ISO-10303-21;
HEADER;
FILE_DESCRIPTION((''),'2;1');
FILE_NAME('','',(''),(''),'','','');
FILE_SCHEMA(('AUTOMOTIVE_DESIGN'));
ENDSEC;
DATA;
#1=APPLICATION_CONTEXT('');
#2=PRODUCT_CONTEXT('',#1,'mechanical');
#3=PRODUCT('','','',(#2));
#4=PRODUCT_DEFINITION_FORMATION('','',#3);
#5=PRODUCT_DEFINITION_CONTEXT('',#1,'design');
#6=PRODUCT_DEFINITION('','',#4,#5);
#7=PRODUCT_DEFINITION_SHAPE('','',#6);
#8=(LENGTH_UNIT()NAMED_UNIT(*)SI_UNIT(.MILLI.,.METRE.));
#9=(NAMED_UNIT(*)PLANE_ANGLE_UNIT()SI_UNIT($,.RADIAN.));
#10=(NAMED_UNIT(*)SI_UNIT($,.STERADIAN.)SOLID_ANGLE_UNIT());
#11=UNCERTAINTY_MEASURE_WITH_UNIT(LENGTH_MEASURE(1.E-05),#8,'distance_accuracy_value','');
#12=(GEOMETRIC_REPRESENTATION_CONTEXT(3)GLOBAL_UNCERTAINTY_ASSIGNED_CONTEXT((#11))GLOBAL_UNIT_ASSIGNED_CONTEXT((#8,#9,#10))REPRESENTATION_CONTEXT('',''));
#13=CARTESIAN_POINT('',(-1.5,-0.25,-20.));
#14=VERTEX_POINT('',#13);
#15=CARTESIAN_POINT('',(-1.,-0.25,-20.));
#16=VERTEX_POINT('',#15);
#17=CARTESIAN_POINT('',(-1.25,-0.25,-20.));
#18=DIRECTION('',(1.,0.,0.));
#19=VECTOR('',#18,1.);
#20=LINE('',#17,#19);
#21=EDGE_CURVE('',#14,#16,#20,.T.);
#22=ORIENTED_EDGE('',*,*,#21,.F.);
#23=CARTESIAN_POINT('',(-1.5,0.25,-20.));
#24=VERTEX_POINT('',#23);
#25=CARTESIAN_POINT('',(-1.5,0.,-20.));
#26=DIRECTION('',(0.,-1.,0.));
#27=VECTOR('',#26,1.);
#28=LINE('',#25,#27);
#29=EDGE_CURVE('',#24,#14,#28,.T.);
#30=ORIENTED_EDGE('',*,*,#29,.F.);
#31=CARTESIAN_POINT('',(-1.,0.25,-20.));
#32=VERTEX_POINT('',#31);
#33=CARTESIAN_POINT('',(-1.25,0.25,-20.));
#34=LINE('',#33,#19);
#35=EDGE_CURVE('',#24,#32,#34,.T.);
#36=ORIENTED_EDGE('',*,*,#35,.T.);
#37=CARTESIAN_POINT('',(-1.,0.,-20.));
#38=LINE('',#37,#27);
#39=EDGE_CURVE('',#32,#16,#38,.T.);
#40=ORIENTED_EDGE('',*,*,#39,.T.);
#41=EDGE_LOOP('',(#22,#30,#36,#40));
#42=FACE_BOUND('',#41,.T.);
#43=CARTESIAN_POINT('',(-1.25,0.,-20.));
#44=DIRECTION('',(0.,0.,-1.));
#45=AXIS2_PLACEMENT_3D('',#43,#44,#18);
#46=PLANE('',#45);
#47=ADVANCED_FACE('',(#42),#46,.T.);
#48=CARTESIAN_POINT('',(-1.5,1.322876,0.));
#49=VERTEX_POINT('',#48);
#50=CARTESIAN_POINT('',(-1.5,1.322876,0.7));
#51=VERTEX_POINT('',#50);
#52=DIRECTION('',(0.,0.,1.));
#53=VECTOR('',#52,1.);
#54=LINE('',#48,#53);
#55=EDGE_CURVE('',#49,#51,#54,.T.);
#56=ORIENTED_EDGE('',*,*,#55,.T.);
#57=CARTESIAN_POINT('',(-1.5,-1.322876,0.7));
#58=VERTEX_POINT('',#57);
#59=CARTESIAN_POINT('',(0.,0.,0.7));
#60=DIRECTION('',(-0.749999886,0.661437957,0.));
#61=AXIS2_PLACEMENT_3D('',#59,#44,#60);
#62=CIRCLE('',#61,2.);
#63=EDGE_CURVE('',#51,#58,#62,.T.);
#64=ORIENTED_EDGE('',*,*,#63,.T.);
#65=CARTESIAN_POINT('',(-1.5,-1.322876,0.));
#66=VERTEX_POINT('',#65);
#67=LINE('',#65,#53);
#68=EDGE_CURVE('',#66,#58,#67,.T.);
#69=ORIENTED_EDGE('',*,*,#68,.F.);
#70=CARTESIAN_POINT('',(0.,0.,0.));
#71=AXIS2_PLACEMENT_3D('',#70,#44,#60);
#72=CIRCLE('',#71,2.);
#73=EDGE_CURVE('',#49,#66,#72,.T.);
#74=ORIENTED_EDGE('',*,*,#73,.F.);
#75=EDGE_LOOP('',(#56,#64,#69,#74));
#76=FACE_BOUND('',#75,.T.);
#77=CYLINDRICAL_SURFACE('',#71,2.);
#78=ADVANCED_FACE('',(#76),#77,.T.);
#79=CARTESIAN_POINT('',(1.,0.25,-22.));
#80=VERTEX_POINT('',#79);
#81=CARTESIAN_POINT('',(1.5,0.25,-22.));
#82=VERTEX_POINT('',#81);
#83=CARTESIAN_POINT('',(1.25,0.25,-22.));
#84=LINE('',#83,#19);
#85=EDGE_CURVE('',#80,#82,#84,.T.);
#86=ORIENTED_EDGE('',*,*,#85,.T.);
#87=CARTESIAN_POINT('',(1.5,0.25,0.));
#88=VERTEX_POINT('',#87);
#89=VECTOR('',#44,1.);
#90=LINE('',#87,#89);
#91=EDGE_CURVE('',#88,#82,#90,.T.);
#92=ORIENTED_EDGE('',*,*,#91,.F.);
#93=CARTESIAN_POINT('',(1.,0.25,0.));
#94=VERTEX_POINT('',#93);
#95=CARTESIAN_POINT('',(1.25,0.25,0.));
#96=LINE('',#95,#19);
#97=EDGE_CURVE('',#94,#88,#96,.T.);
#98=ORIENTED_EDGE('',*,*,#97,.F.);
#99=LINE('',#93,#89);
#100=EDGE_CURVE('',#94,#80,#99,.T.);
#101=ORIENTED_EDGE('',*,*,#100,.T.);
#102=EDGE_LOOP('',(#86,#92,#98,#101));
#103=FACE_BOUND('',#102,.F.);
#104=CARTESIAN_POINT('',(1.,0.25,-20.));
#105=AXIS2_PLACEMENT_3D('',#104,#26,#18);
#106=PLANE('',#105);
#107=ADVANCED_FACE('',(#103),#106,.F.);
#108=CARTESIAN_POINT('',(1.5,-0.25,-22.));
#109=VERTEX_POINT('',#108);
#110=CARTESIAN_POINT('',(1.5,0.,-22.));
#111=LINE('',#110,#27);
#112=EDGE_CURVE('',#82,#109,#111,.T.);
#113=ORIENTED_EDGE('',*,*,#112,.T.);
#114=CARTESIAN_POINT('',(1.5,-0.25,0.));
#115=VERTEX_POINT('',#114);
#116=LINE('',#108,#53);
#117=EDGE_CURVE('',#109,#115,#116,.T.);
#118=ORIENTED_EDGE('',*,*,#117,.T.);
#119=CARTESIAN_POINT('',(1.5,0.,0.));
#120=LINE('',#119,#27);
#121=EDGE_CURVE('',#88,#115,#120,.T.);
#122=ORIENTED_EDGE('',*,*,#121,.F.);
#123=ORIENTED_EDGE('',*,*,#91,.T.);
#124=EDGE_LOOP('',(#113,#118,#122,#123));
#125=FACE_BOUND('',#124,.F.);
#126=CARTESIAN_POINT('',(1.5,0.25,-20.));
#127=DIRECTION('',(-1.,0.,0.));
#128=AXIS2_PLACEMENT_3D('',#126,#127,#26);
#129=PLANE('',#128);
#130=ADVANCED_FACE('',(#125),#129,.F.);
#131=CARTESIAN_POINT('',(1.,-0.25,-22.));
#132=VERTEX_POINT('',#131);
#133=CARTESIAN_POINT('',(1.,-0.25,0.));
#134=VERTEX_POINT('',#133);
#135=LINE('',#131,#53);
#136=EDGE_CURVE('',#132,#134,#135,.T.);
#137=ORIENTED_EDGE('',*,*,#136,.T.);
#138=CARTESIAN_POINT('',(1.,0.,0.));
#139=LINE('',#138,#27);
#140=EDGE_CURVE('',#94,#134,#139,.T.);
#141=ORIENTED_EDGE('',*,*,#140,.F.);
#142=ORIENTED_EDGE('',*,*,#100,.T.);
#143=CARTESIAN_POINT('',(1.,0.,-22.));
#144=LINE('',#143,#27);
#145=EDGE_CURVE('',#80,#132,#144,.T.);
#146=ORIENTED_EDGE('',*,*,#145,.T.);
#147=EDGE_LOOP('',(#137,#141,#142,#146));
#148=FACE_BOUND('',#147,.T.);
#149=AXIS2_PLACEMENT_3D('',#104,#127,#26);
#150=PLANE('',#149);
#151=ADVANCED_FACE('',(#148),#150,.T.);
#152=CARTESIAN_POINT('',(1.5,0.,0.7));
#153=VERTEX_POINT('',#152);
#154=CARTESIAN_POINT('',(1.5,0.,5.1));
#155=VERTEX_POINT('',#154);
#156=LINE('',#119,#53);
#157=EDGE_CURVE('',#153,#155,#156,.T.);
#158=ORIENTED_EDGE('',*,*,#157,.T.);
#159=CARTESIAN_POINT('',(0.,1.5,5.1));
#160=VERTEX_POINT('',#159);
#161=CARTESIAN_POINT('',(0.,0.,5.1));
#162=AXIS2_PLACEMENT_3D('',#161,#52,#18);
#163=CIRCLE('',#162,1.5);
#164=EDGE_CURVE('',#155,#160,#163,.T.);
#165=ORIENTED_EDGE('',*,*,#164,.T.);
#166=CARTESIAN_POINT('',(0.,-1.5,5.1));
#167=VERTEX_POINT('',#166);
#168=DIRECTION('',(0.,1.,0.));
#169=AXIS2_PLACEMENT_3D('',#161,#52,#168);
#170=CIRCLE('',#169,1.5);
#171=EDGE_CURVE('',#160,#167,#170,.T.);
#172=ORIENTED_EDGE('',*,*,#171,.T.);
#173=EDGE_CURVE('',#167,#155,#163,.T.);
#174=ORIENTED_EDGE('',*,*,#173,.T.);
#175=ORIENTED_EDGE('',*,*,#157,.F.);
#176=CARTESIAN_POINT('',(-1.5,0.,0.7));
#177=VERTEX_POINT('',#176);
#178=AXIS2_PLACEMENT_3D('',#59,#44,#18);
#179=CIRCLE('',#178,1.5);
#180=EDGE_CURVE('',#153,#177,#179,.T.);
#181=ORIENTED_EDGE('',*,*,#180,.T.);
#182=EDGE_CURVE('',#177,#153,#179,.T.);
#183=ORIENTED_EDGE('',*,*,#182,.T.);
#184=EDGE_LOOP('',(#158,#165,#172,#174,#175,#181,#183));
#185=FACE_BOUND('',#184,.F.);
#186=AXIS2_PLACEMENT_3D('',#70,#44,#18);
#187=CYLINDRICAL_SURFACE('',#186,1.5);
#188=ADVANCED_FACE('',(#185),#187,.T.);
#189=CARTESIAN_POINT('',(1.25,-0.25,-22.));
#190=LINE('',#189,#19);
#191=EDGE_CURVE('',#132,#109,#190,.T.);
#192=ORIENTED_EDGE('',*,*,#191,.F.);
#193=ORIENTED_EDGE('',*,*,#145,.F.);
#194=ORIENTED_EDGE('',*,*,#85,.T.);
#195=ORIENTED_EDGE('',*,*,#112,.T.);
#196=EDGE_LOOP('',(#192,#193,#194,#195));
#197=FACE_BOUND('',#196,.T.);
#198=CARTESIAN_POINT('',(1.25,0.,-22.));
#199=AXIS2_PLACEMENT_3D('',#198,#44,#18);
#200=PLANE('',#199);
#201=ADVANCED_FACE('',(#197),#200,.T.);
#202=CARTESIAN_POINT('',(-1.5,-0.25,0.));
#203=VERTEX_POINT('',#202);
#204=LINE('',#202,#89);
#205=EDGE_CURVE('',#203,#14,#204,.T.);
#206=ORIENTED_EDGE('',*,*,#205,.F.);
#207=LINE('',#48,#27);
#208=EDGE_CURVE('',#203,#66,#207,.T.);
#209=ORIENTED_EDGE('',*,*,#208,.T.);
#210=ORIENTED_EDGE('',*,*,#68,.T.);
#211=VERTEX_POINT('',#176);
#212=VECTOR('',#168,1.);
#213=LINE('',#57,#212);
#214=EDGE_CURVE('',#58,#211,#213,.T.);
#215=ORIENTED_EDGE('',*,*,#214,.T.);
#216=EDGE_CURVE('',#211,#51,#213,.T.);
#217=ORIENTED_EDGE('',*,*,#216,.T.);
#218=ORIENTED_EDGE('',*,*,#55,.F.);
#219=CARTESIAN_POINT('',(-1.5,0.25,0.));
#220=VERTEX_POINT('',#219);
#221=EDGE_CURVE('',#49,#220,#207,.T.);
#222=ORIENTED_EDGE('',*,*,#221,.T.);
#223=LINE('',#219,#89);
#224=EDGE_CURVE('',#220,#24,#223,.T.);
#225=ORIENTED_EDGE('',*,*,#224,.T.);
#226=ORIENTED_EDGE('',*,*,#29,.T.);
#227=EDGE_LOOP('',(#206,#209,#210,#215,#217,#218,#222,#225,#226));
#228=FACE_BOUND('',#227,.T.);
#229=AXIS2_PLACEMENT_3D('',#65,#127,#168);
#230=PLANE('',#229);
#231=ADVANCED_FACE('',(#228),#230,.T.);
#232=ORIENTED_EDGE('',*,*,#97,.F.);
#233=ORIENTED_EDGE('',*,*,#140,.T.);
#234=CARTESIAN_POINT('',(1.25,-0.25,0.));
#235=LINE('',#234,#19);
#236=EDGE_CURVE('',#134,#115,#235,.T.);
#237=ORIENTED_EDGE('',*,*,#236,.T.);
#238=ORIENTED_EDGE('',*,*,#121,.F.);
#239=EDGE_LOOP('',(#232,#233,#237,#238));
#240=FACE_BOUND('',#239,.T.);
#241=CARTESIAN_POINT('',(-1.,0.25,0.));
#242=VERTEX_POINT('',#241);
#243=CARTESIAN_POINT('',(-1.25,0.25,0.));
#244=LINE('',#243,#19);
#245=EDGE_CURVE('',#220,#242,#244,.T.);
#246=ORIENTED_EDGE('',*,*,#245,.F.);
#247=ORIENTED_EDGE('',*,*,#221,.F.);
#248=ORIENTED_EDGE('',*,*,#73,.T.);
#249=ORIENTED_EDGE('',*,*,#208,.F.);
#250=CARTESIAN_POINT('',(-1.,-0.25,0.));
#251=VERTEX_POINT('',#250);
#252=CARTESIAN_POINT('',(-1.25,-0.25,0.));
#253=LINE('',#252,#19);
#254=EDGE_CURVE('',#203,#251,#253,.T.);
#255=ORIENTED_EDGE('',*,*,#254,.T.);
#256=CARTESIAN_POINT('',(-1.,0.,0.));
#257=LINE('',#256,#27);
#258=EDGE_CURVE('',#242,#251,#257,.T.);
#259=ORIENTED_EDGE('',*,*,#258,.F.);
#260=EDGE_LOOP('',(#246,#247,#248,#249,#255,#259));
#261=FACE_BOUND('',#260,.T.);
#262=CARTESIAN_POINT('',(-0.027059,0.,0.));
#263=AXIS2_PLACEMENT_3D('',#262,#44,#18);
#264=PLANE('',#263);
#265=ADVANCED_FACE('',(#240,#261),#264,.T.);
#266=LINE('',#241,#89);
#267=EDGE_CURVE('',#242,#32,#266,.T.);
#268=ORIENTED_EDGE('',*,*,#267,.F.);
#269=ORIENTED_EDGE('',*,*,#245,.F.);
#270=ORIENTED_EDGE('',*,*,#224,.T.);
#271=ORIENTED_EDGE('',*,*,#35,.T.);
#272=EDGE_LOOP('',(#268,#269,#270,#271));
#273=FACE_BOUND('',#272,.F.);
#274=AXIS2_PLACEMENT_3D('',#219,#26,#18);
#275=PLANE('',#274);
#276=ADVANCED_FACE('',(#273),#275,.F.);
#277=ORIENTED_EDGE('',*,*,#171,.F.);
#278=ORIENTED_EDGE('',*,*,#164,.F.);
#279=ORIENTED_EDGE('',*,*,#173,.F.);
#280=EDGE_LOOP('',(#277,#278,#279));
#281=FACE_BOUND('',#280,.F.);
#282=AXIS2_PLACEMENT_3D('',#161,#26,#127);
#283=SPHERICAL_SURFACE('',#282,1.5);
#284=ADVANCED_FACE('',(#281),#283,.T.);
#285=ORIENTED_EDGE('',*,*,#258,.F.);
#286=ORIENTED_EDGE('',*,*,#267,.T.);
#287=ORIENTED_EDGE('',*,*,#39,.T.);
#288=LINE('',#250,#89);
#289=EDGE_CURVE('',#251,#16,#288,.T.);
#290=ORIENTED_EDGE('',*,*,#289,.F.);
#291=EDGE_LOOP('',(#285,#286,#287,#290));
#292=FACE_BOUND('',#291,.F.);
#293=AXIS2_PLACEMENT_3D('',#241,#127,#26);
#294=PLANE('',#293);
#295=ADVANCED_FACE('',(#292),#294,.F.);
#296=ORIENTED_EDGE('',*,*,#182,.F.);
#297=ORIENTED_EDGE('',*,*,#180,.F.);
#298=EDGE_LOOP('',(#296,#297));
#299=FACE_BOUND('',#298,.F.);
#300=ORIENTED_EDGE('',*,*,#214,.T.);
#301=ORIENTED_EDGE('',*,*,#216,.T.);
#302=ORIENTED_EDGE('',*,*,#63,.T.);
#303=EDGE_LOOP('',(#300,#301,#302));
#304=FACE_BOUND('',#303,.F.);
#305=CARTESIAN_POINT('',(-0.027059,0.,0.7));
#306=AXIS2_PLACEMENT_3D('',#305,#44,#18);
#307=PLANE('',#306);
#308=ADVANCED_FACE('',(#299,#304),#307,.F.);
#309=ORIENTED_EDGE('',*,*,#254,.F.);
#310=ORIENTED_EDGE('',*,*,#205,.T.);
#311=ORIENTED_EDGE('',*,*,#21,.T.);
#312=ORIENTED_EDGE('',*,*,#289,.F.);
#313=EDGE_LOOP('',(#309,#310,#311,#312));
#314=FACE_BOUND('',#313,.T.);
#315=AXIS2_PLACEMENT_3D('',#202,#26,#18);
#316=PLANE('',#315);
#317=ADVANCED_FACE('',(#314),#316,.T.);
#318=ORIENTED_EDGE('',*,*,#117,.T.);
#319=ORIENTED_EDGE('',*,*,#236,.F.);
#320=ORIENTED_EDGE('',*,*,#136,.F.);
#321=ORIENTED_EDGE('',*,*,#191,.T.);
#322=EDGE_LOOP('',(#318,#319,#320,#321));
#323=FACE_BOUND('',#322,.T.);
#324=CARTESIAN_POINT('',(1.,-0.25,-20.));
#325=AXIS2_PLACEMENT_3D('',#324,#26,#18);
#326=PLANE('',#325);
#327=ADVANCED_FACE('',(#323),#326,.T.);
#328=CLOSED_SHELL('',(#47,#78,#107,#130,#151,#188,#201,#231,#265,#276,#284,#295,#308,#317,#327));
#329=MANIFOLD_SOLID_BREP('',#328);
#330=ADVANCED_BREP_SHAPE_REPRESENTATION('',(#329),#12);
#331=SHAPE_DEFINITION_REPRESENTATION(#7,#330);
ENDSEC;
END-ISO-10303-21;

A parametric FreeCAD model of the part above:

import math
import FreeCAD as App
import Part
import Sketcher

V = App.Vector

doc = App.newDocument("Part")
params = doc.addObject("Spreadsheet::Sheet", "Params")
for row, (alias, value) in enumerate([
    ("sketch1_diameter", "3 mm"),
    ("pad1_length", "5.1 mm"),
    ("sketch2_radius", "1.5 mm"),
    ("revolution_angle", "360 deg"),
    ("sketch3_radius", "2 mm"),
    ("pad2_length", "0.7 mm"),
    ("sketch4_width", "0.5 mm"),
    ("pad3_length", "20 mm"),
    ("sketch5_width", "0.5 mm"),
    ("pad4_length", "2 mm"),
], start=1):
    params.set(f"A{row}", alias)
    params.set(f"B{row}", "=" + value)
    params.setAlias(f"B{row}", alias)

body = doc.addObject("PartDesign::Body", "Body")

sketch1 = body.newObject("Sketcher::SketchObject", "Sketch")
sketch1.AttachmentSupport = (doc.getObject("XY_Plane"), [""])
sketch1.MapMode = "FlatFace"
sketch1.addGeometry(Part.Circle(V(0, 0, 0), V(0, 0, 1), 1.5), False)
sketch1.addConstraint([
    Sketcher.Constraint("Coincident", 0, 3, -1, 1),
    Sketcher.Constraint("Diameter", 0, 3.0),
])
sketch1.setExpression("Constraints[1]", "Params.sketch1_diameter")
pad1 = body.newObject("PartDesign::Pad", "Pad")
pad1.Profile = sketch1
pad1.setExpression("Length", "Params.pad1_length")

sketch2 = body.newObject("Sketcher::SketchObject", "Sketch001")
sketch2.AttachmentSupport = (doc.getObject("XY_Plane"), [""])
sketch2.MapMode = "FlatFace"
sketch2.AttachmentOffset = App.Placement(V(0, 0, 5.1), App.Rotation())
sketch2.addGeometry([
    Part.ArcOfCircle(Part.Circle(V(0, 0, 0), V(0, 0, 1), 1.5), math.radians(90), math.radians(270)),
    Part.LineSegment(V(0, -1.5, 0), V(0, 1.5, 0)),
], False)
sketch2.addConstraint([
    Sketcher.Constraint("Coincident", 0, 1, 1, 2),
    Sketcher.Constraint("Coincident", 1, 1, 0, 2),
    Sketcher.Constraint("Vertical", 1),
    Sketcher.Constraint("Coincident", 0, 3, -1, 1),
    Sketcher.Constraint("PointOnObject", 0, 1, -2),
    Sketcher.Constraint("Radius", 0, 1.5),
])
sketch2.setExpression("Constraints[5]", "Params.sketch2_radius")
revolution = body.newObject("PartDesign::Revolution", "Revolution")
revolution.Profile = sketch2
revolution.ReferenceAxis = (sketch2, ["V_Axis"])
revolution.setExpression("Angle", "Params.revolution_angle")

sketch3 = body.newObject("Sketcher::SketchObject", "Sketch002")
sketch3.AttachmentSupport = (doc.getObject("XY_Plane"), [""])
sketch3.MapMode = "FlatFace"
sketch3.addGeometry([
    Part.LineSegment(V(-1.5, -1.3, 0), V(-1.5, 1.3, 0)),
    Part.ArcOfCircle(Part.Circle(V(0, 0, 0), V(0, 0, 1), 2), math.radians(-139), math.radians(139)),
], False)
sketch3.addConstraint([
    Sketcher.Constraint("Coincident", 0, 1, 1, 1),
    Sketcher.Constraint("Coincident", 1, 2, 0, 2),
    Sketcher.Constraint("Vertical", 0),
    Sketcher.Constraint("Coincident", 1, 3, -1, 1),
    Sketcher.Constraint("Radius", 1, 2.0),
    Sketcher.Constraint("DistanceX", 0, 1, -1, 1, 1.5),
])
sketch3.setExpression("Constraints[4]", "Params.sketch3_radius")
pad2 = body.newObject("PartDesign::Pad", "Pad001")
pad2.Profile = sketch3
pad2.setExpression("Length", "Params.pad2_length")

sketch4 = body.newObject("Sketcher::SketchObject", "Sketch003")
sketch4.AttachmentSupport = (doc.getObject("XY_Plane"), [""])
sketch4.MapMode = "FlatFace"
sketch4.addGeometry([
    Part.LineSegment(V(1, -0.2, 0), V(1, 0.2, 0)),
    Part.LineSegment(V(1, 0.2, 0), V(1.5, 0.2, 0)),
    Part.LineSegment(V(1.5, 0.2, 0), V(1.5, -0.2, 0)),
    Part.LineSegment(V(1.5, -0.2, 0), V(1, -0.2, 0)),
    Part.LineSegment(V(-1.5, -0.2, 0), V(-1.5, 0.2, 0)),
    Part.LineSegment(V(-1.5, 0.2, 0), V(-1, 0.2, 0)),
    Part.LineSegment(V(-1, 0.2, 0), V(-1, -0.2, 0)),
    Part.LineSegment(V(-1, -0.2, 0), V(-1.5, -0.2, 0)),
], False)
sketch4.addConstraint([
    Sketcher.Constraint("Coincident", 0, 2, 1, 1),
    Sketcher.Constraint("Coincident", 1, 2, 2, 1),
    Sketcher.Constraint("Coincident", 2, 2, 3, 1),
    Sketcher.Constraint("Coincident", 3, 2, 0, 1),
    Sketcher.Constraint("Coincident", 4, 2, 5, 1),
    Sketcher.Constraint("Coincident", 5, 2, 6, 1),
    Sketcher.Constraint("Coincident", 6, 2, 7, 1),
    Sketcher.Constraint("Coincident", 7, 2, 4, 1),
    Sketcher.Constraint("Vertical", 0),
    Sketcher.Constraint("Horizontal", 1),
    Sketcher.Constraint("Vertical", 2),
    Sketcher.Constraint("Horizontal", 3),
    Sketcher.Constraint("Vertical", 4),
    Sketcher.Constraint("Horizontal", 5),
    Sketcher.Constraint("Vertical", 6),
    Sketcher.Constraint("Horizontal", 7),
    Sketcher.Constraint("Symmetric", 2, 2, 4, 2, -1, 1),
    Sketcher.Constraint("Symmetric", 0, 2, 6, 2, -1, 1),
    Sketcher.Constraint("Horizontal", 1, 2, 4, 2),
    Sketcher.Constraint("Equal", 7, 0),
    Sketcher.Constraint("DistanceX", 1, 1, 1, 2, 0.5),
    Sketcher.Constraint("DistanceX", -1, 1, 0, 2, 1.0),
])
sketch4.setExpression("Constraints[20]", "Params.sketch4_width")
pad3 = body.newObject("PartDesign::Pad", "Pad002")
pad3.Profile = sketch4
pad3.setExpression("Length", "Params.pad3_length")
pad3.Reversed = True

sketch5 = body.newObject("Sketcher::SketchObject", "Sketch004")
sketch5.AttachmentSupport = (doc.getObject("XY_Plane"), [""])
sketch5.MapMode = "FlatFace"
sketch5.AttachmentOffset = App.Placement(V(0, 0, -20), App.Rotation())
sketch5.addGeometry([
    Part.LineSegment(V(1, -0.2, 0), V(1, 0.2, 0)),
    Part.LineSegment(V(1, 0.2, 0), V(1.5, 0.2, 0)),
    Part.LineSegment(V(1.5, 0.2, 0), V(1.5, -0.2, 0)),
    Part.LineSegment(V(1.5, -0.2, 0), V(1, -0.2, 0)),
], False)
sketch5.addConstraint([
    Sketcher.Constraint("Coincident", 0, 2, 1, 1),
    Sketcher.Constraint("Coincident", 1, 2, 2, 1),
    Sketcher.Constraint("Coincident", 2, 2, 3, 1),
    Sketcher.Constraint("Coincident", 3, 2, 0, 1),
    Sketcher.Constraint("Vertical", 0),
    Sketcher.Constraint("Horizontal", 1),
    Sketcher.Constraint("Vertical", 2),
    Sketcher.Constraint("Horizontal", 3),
    Sketcher.Constraint("Equal", 3, 0),
    Sketcher.Constraint("DistanceX", 1, 1, 1, 2, 0.5),
    Sketcher.Constraint("DistanceX", -1, 1, 0, 2, 1.0),
    Sketcher.Constraint("DistanceY", -1, 1, 0, 2, 0.25),
])
sketch5.setExpression("Constraints[9]", "Params.sketch5_width")
pad4 = body.newObject("PartDesign::Pad", "Pad003")
pad4.Profile = sketch5
pad4.setExpression("Length", "Params.pad4_length")
pad4.Reversed = True

doc.recompute()
